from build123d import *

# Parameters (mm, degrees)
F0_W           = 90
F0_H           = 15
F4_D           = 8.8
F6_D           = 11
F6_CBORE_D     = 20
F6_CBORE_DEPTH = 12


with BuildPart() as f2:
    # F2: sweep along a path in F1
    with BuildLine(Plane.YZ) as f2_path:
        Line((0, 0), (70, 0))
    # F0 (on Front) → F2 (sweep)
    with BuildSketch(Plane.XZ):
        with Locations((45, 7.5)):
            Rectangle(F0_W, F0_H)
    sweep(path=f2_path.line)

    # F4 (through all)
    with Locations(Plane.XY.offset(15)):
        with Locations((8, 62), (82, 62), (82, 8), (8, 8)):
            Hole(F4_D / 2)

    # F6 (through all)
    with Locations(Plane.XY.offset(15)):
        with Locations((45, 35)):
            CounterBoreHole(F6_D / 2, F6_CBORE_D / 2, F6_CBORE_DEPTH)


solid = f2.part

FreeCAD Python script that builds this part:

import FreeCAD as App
import Part
import Sketcher

V = App.Vector

doc = App.newDocument("Part")
body = doc.addObject("PartDesign::Body", "Body")

sketch1 = body.newObject("Sketcher::SketchObject", "Sketch")
sketch1.AttachmentSupport = (doc.getObject("XZ_Plane"), [""])
sketch1.MapMode = "FlatFace"
sketch1.addGeometry(Part.LineSegment(V(0, 15, 0), V(0, 0, 0)), False)
sketch1.addGeometry(Part.LineSegment(V(0, 0, 0), V(90, 0, 0)), False)
sketch1.addGeometry(Part.LineSegment(V(90, 0, 0), V(90, 15, 0)), False)
sketch1.addGeometry(Part.LineSegment(V(90, 15, 0), V(0, 15, 0)), False)
sketch1.addConstraint(Sketcher.Constraint("Coincident", 0, 2, 1, 1))
sketch1.addConstraint(Sketcher.Constraint("Coincident", 1, 2, 2, 1))
sketch1.addConstraint(Sketcher.Constraint("Coincident", 2, 2, 3, 1))
sketch1.addConstraint(Sketcher.Constraint("Coincident", 3, 2, 0, 1))
sketch1.addConstraint(Sketcher.Constraint("Vertical", 0))
sketch1.addConstraint(Sketcher.Constraint("Horizontal", 1))
sketch1.addConstraint(Sketcher.Constraint("Vertical", 2))
sketch1.addConstraint(Sketcher.Constraint("Horizontal", 3))
sketch1.addConstraint(Sketcher.Constraint("Coincident", 0, 2, -1, 1))
sketch1.addConstraint(Sketcher.Constraint("DistanceX", 1, 1, 1, 2, 90.0))
sketch1.addConstraint(Sketcher.Constraint("DistanceY", 0, 2, 0, 1, 15.0))

sketch2 = body.newObject("Sketcher::SketchObject", "Sketch001")
sketch2.AttachmentSupport = (doc.getObject("XY_Plane"), [""])
sketch2.MapMode = "FlatFace"
sketch2.addGeometry(Part.LineSegment(V(0, 0, 0), V(0, 70, 0)), False)
sketch2.addConstraint(Sketcher.Constraint("Vertical", 0))
sketch2.addConstraint(Sketcher.Constraint("Coincident", 0, 1, -1, 1))
sketch2.addConstraint(Sketcher.Constraint("DistanceY", 0, 1, 0, 2, 70.0))
doc.recompute()

additivepipe = body.newObject("PartDesign::AdditivePipe", "AdditivePipe")
additivepipe.Profile = sketch1
additivepipe.Spine = (sketch2, ["Edge1"])

sketch3 = body.newObject("Sketcher::SketchObject", "Sketch002")
sketch3.AttachmentSupport = (doc.getObject("XY_Plane"), [""])
sketch3.MapMode = "FlatFace"
sketch3.AttachmentOffset = App.Placement(V(0, 0, 15), App.Rotation())
sketch3.addGeometry(Part.Circle(V(8, 62, 0), V(0, 0, 1), 4.4), False)
sketch3.addGeometry(Part.Circle(V(82, 62, 0), V(0, 0, 1), 4.4), False)
sketch3.addGeometry(Part.Circle(V(82, 8, 0), V(0, 0, 1), 4.4), False)
sketch3.addGeometry(Part.Circle(V(8, 8, 0), V(0, 0, 1), 4.4), False)
sketch3.addConstraint(Sketcher.Constraint("Equal", 0, 1))
sketch3.addConstraint(Sketcher.Constraint("Equal", 1, 2))
sketch3.addConstraint(Sketcher.Constraint("Equal", 2, 3))
sketch3.addConstraint(Sketcher.Constraint("Horizontal", 0, 3, 1, 3))
sketch3.addConstraint(Sketcher.Constraint("Horizontal", 2, 3, 3, 3))
sketch3.addConstraint(Sketcher.Constraint("Vertical", 1, 3, 2, 3))
sketch3.addConstraint(Sketcher.Constraint("Vertical", 0, 3, 3, 3))
sketch3.addConstraint(Sketcher.Constraint("Diameter", 0, 8.8))
sketch3.addConstraint(Sketcher.Constraint("DistanceX", -1, 1, 0, 3, 8.0))
sketch3.addConstraint(Sketcher.Constraint("DistanceY", -1, 1, 0, 3, 62.0))
sketch3.addConstraint(Sketcher.Constraint("DistanceX", -1, 1, 1, 3, 82.0))
sketch3.addConstraint(Sketcher.Constraint("DistanceY", -1, 1, 2, 3, 8.0))
doc.recompute()
hole = body.newObject("PartDesign::Hole", "Hole")
hole.Profile = sketch3
hole.ThreadType = "None"
hole.Diameter = 8.8
hole.DepthType = "ThroughAll"

sketch4 = body.newObject("Sketcher::SketchObject", "Sketch003")
sketch4.AttachmentSupport = (doc.getObject("XY_Plane"), [""])
sketch4.MapMode = "FlatFace"
sketch4.AttachmentOffset = App.Placement(V(0, 0, 15), App.Rotation())
sketch4.addGeometry(Part.Circle(V(45, 35, 0), V(0, 0, 1), 5.5), False)
sketch4.addConstraint(Sketcher.Constraint("Diameter", 0, 11.0))
sketch4.addConstraint(Sketcher.Constraint("DistanceX", -1, 1, 0, 3, 45.0))
sketch4.addConstraint(Sketcher.Constraint("DistanceY", -1, 1, 0, 3, 35.0))
doc.recompute()
hole2 = body.newObject("PartDesign::Hole", "Hole001")
hole2.Profile = sketch4
hole2.ThreadType = "None"
hole2.Diameter = 11
hole2.DepthType = "ThroughAll"
hole2.HoleCutType = "Counterbore"
hole2.HoleCutDiameter = 20
hole2.HoleCutDepth = 12

doc.recompute()
